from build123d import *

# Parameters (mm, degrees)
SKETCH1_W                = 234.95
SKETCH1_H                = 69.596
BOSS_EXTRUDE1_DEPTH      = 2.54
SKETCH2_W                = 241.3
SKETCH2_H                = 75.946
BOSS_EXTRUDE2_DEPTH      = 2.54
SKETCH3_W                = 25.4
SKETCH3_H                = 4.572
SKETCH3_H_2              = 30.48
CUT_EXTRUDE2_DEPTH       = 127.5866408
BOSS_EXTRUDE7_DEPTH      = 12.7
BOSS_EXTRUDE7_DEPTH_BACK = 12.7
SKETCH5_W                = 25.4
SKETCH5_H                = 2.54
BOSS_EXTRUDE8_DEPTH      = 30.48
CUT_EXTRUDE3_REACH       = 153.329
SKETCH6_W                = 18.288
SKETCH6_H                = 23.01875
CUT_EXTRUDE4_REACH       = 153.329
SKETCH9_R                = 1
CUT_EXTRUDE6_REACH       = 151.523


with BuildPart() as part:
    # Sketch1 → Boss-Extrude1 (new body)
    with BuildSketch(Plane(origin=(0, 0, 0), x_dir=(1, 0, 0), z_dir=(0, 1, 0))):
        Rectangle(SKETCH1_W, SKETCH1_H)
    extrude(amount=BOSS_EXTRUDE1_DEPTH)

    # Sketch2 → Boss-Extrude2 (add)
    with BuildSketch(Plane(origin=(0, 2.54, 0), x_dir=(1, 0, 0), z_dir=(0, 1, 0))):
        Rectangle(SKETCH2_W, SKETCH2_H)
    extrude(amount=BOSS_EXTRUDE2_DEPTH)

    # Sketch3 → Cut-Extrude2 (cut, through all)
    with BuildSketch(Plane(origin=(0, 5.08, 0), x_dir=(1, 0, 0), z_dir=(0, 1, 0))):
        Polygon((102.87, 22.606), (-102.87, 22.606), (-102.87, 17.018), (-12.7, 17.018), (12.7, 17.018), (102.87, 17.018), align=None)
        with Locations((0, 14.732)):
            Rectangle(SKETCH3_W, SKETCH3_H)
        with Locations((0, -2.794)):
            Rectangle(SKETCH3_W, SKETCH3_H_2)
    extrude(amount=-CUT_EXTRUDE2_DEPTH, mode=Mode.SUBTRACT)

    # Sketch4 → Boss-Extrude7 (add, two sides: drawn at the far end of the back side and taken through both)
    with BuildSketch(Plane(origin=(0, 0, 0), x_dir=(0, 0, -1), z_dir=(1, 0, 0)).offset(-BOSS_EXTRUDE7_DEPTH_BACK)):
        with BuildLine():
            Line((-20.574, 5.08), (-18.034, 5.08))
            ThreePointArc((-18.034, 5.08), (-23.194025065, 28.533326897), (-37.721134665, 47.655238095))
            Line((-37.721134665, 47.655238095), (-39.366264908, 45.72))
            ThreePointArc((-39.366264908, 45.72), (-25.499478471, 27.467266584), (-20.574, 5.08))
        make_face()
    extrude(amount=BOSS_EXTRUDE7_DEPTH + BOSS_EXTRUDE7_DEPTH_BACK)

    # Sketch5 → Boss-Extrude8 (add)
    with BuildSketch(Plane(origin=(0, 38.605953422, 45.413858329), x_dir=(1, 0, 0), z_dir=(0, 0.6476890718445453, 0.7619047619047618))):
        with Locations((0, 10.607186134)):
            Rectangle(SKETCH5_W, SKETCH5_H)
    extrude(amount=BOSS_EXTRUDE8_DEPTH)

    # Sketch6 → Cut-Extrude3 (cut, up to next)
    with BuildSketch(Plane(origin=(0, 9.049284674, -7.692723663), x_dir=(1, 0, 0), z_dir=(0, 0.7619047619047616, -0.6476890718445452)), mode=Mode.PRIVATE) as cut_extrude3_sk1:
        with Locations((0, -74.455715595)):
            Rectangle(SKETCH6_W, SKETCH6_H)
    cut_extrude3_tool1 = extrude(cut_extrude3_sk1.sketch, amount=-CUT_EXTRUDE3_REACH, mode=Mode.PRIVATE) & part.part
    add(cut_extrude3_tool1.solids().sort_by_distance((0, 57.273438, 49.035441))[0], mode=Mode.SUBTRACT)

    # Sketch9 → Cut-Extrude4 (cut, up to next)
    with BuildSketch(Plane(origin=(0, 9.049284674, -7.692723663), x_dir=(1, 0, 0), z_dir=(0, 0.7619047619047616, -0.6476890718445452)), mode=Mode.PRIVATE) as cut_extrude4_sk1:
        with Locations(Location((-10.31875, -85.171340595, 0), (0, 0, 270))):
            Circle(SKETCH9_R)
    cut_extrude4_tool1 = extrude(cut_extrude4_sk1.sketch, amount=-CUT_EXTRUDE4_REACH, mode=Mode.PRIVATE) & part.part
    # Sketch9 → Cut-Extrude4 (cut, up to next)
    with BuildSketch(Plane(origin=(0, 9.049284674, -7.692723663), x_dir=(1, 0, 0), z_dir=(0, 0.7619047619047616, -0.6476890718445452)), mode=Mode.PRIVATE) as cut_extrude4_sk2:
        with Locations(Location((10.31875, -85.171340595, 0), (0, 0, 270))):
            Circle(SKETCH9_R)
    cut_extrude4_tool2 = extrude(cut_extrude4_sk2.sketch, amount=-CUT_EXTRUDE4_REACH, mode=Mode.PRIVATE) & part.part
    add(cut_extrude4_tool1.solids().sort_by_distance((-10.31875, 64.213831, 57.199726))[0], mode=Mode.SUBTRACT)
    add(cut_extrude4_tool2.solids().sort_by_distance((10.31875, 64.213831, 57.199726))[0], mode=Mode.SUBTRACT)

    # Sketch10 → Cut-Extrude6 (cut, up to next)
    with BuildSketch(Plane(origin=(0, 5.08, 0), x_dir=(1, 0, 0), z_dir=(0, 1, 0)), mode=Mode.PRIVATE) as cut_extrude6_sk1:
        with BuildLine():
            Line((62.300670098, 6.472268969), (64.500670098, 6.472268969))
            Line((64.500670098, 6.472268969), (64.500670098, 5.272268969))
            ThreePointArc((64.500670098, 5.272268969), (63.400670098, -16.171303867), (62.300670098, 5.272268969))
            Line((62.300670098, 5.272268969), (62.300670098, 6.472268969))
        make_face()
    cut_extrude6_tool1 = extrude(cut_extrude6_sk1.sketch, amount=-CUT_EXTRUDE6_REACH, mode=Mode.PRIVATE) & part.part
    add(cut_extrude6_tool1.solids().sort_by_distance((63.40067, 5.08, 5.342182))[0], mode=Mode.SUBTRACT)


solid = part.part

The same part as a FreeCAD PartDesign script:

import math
import FreeCAD as App
import Part
import Sketcher

V = App.Vector
Q = App.Units.Quantity


def add_polygon(sketch, points):
    """Adds a closed chain of lines whose ends are joined by coincident constraints."""
    first, n = sketch.GeometryCount, len(points)
    for a, b in zip(points, points[1:] + points[:1]):
        sketch.addGeometry(Part.LineSegment(App.Vector(*a, 0), App.Vector(*b, 0)), False)
    for i in range(n):
        sketch.addConstraint(Sketcher.Constraint("Coincident", first + i, 2, first + (i + 1) % n, 1))

doc = App.newDocument("Part")
body = doc.addObject("PartDesign::Body", "Body")

sketch1 = doc.addObject("Sketcher::SketchObject", "Sketch")
body.addObject(sketch1)
sketch1.AttachmentSupport = (doc.XZ_Plane, [""])
sketch1.MapMode = "FlatFace"
add_polygon(sketch1, [(-117, -35), (-117, 35), (117, 35), (117, -35)])
sketch1.addConstraint([
    Sketcher.Constraint("Vertical", 0),
    Sketcher.Constraint("Horizontal", 1),
    Sketcher.Constraint("Vertical", 2),
    Sketcher.Constraint("Horizontal", 3),
    Sketcher.Constraint("Symmetric", 0, 2, 2, 2, -1, 1),
    Sketcher.Constraint("DistanceX", 1, 1, 1, 2, Q("9.25 in")),
    Sketcher.Constraint("DistanceY", 0, 1, 0, 2, Q("2.74 in")),
])
pad1 = doc.addObject("PartDesign::Pad", "Pad")
body.addObject(pad1)
pad1.Profile = sketch1
pad1.Length = Q("0.1 in")
pad1.Reversed = True

sketch2 = doc.addObject("Sketcher::SketchObject", "Sketch001")
body.addObject(sketch2)
sketch2.AttachmentSupport = (doc.XZ_Plane, [""])
sketch2.MapMode = "FlatFace"
sketch2.AttachmentOffset = App.Placement(V(0, 0, -0.1 * 25.4), App.Rotation())
add_polygon(sketch2, [(-121, -38), (-121, 38), (121, 38), (121, -38)])
sketch2.addConstraint([
    Sketcher.Constraint("Vertical", 0),
    Sketcher.Constraint("Horizontal", 1),
    Sketcher.Constraint("Vertical", 2),
    Sketcher.Constraint("Horizontal", 3),
    Sketcher.Constraint("Symmetric", 0, 2, 2, 2, -1, 1),
    Sketcher.Constraint("DistanceX", 1, 1, 1, 2, Q("9.5 in")),
    Sketcher.Constraint("DistanceY", 0, 1, 0, 2, Q("2.99 in")),
])
pad2 = doc.addObject("PartDesign::Pad", "Pad001")
body.addObject(pad2)
pad2.Profile = sketch2
pad2.Length = Q("0.1 in")
pad2.Reversed = True

sketch3 = doc.addObject("Sketcher::SketchObject", "Sketch002")
body.addObject(sketch3)
sketch3.AttachmentSupport = (doc.XZ_Plane, [""])
sketch3.MapMode = "FlatFace"
sketch3.AttachmentOffset = App.Placement(V(0, 0, -0.2 * 25.4), App.Rotation())
add_polygon(sketch3, [(103, -23), (-103, -23), (-103, -17), (-13, -17), (-13, 18), (13, 18), (13, -17), (103, -17)])
sketch3.addConstraint([
    Sketcher.Constraint("Horizontal", 0),
    Sketcher.Constraint("Vertical", 1),
    Sketcher.Constraint("Horizontal", 2),
    Sketcher.Constraint("Vertical", 3),
    Sketcher.Constraint("Horizontal", 4),
    Sketcher.Constraint("Vertical", 5),
    Sketcher.Constraint("Horizontal", 6),
    Sketcher.Constraint("Vertical", 7),
    Sketcher.Constraint("Symmetric", 2, 2, 5, 2, -2),
    Sketcher.Constraint("Equal", 2, 6),
    Sketcher.Constraint("DistanceX", 4, 1, 4, 2, Q("1 in")),
    Sketcher.Constraint("DistanceX", 0, 2, 0, 1, Q("8.1 in")),
    Sketcher.Constraint("DistanceY", 1, 1, 1, 2, Q("0.22 in")),
    Sketcher.Constraint("DistanceY", 3, 1, 3, 2, Q("1.38 in")),
    Sketcher.Constraint("DistanceY", 0, 2, -1, 1, Q("0.89 in")),
])
pocket1 = doc.addObject("PartDesign::Pocket", "Pocket")
body.addObject(pocket1)
pocket1.Profile = sketch3
pocket1.Type = "ThroughAll"
pocket1.Reversed = True

sketch4 = doc.addObject("Sketcher::SketchObject", "Sketch003")
body.addObject(sketch4)
sketch4.AttachmentSupport = (doc.YZ_Plane, [""])
sketch4.MapMode = "FlatFace"
sketch4.addGeometry([
    Part.LineSegment(V(5.1, 20.6, 0), V(5.1, 18, 0)),
    Part.ArcOfCircle(Part.Circle(V(5.1, 73.9, 0), V(0, 0, 1), 55.9), math.radians(-90), math.radians(-40)),
    Part.LineSegment(V(47.7, 37.7, 0), V(45.7, 39.4, 0)),
    Part.ArcOfCircle(Part.Circle(V(5.1, 73.9, 0), V(0, 0, 1), 53.3), math.radians(-90), math.radians(-40)),
], False)
sketch4.addConstraint([
    Sketcher.Constraint("Coincident", 0, 2, 1, 1),
    Sketcher.Constraint("Coincident", 1, 2, 2, 1),
    Sketcher.Constraint("Coincident", 2, 2, 3, 2),
    Sketcher.Constraint("Coincident", 3, 1, 0, 1),
    Sketcher.Constraint("Vertical", 0),
    Sketcher.Constraint("Coincident", 3, 3, 1, 3),
    Sketcher.Constraint("Vertical", 3, 3, 0, 2),
    Sketcher.Constraint("Radius", 1, Q("2.2 in")),
    Sketcher.Constraint("Radius", 3, Q("2.1 in")),
    Sketcher.Constraint("DistanceX", -1, 1, 1, 3, Q("0.2 in")),
    Sketcher.Constraint("DistanceX", -1, 1, 2, 2, Q("1.8 in")),
    Sketcher.Constraint("DistanceY", -1, 1, 1, 3, Q("2.91 in")),
    Sketcher.Constraint("DistanceX", -1, 1, 1, 2, Q("47.655238 mm")),
])
pad3 = doc.addObject("PartDesign::Pad", "Pad002")
body.addObject(pad3)
pad3.Profile = sketch4
pad3.Type = "TwoLengths"
pad3.Length = Q("0.5 in")
pad3.Length2 = Q("0.5 in")

sketch5 = doc.addObject("Sketcher::SketchObject", "Sketch004")
body.addObject(sketch5)
sketch5.Placement = App.Placement(V(0, 38.605953, 45.413858), App.Rotation(V(1, 0, 0), V(0, 0.761904762, -0.647689072), V(0, 0.647689072, 0.761904762), "ZXY"))
add_polygon(sketch5, [(-12.7, 11.9), (-12.7, 9.3), (12.7, 9.3), (12.7, 11.9)])
sketch5.addConstraint([
    Sketcher.Constraint("Vertical", 0),
    Sketcher.Constraint("Horizontal", 1),
    Sketcher.Constraint("Vertical", 2),
    Sketcher.Constraint("Horizontal", 3),
    Sketcher.Constraint("DistanceX", 1, 1, 1, 2, Q("1 in")),
    Sketcher.Constraint("DistanceY", 0, 2, 0, 1, Q("0.1 in")),
    Sketcher.Constraint("DistanceX", 0, 2, -1, 1, Q("0.5 in")),
    Sketcher.Constraint("DistanceY", -1, 1, 0, 2, Q("9.337186 mm")),
])
pad4 = doc.addObject("PartDesign::Pad", "Pad003")
body.addObject(pad4)
pad4.Profile = sketch5
pad4.Length = Q("1.2 in")

sketch6 = doc.addObject("Sketcher::SketchObject", "Sketch005")
body.addObject(sketch6)
sketch6.Placement = App.Placement(V(0, 9.049285, -7.692724), App.Rotation(V(1, 0, 0), V(0, -0.647689072, -0.761904762), V(0, 0.761904762, -0.647689072), "ZXY"))
add_polygon(sketch6, [(-9, -63), (-9, -86), (9, -86), (9, -63)])
sketch6.addConstraint([
    Sketcher.Constraint("Vertical", 0),
    Sketcher.Constraint("Horizontal", 1),
    Sketcher.Constraint("Vertical", 2),
    Sketcher.Constraint("Horizontal", 3),
    Sketcher.Constraint("DistanceX", 1, 1, 1, 2, Q("0.72 in")),
    Sketcher.Constraint("DistanceY", 0, 2, 0, 1, Q("0.90625 in")),
    Sketcher.Constraint("DistanceX", 0, 2, -1, 1, Q("0.36 in")),
    Sketcher.Constraint("DistanceY", 0, 2, -1, 1, Q("85.965091 mm")),
])
pocket2 = doc.addObject("PartDesign::Pocket", "Pocket001")
body.addObject(pocket2)
pocket2.Profile = sketch6
pocket2.Type = "UpToFirst"

sketch7 = doc.addObject("Sketcher::SketchObject", "Sketch006")
body.addObject(sketch7)
sketch7.Placement = App.Placement(V(0, 9.049285, -7.692724), App.Rotation(V(1, 0, 0), V(0, -0.647689072, -0.761904762), V(0, 0.761904762, -0.647689072), "ZXY"))
sketch7.addGeometry(Part.Circle(V(-10.3, -85.2, 0), V(0, 0, 1), 1), False)
sketch7.addConstraint([
    Sketcher.Constraint("Diameter", 0, Q("2 mm")),
    Sketcher.Constraint("DistanceX", 0, 3, -1, 1, Q("0.40625 in")),
    Sketcher.Constraint("DistanceY", 0, 3, -1, 1, Q("85.171341 mm")),
])
pocket3 = doc.addObject("PartDesign::Pocket", "Pocket002")
body.addObject(pocket3)
pocket3.Profile = sketch7
pocket3.Type = "UpToFirst"

sketch8 = doc.addObject("Sketcher::SketchObject", "Sketch007")
body.addObject(sketch8)
sketch8.Placement = App.Placement(V(0, 9.049285, -7.692724), App.Rotation(V(1, 0, 0), V(0, -0.647689072, -0.761904762), V(0, 0.761904762, -0.647689072), "ZXY"))
sketch8.addGeometry(Part.Circle(V(10.3, -85.2, 0), V(0, 0, 1), 1), False)
sketch8.addConstraint([
    Sketcher.Constraint("Diameter", 0, Q("2 mm")),
    Sketcher.Constraint("DistanceX", -1, 1, 0, 3, Q("0.40625 in")),
    Sketcher.Constraint("DistanceY", 0, 3, -1, 1, Q("85.171341 mm")),
])
pocket4 = doc.addObject("PartDesign::Pocket", "Pocket003")
body.addObject(pocket4)
pocket4.Profile = sketch8
pocket4.Type = "UpToFirst"

sketch9 = doc.addObject("Sketcher::SketchObject", "Sketch008")
body.addObject(sketch9)
sketch9.AttachmentSupport = (doc.XZ_Plane, [""])
sketch9.MapMode = "FlatFace"
sketch9.AttachmentOffset = App.Placement(V(0, 0, -0.2 * 25.4), App.Rotation())
sketch9.addGeometry([
    Part.LineSegment(V(64.5, -6.5, 0), V(62.3, -6.5, 0)),
    Part.LineSegment(V(62.3, -6.5, 0), V(62.3, -5.3, 0)),
    Part.ArcOfCircle(Part.Circle(V(63.4, 5.4, 0), V(0, 0, 1), 10.8), math.radians(-84), math.radians(264)),
    Part.LineSegment(V(64.5, -5.3, 0), V(64.5, -6.5, 0)),
], False)
sketch9.addConstraint([
    Sketcher.Constraint("Coincident", 0, 2, 1, 1),
    Sketcher.Constraint("Coincident", 1, 2, 2, 2),
    Sketcher.Constraint("Coincident", 2, 1, 3, 1),
    Sketcher.Constraint("Coincident", 3, 2, 0, 1),
    Sketcher.Constraint("Horizontal", 0),
    Sketcher.Constraint("Vertical", 1),
    Sketcher.Constraint("Vertical", 3),
    Sketcher.Constraint("Horizontal", 1, 2, 2, 1),
    Sketcher.Constraint("Radius", 2, Q("10.75 mm")),
    Sketcher.Constraint("DistanceX", 0, 2, 0, 1, Q("2.2 mm")),
    Sketcher.Constraint("DistanceY", 1, 1, 1, 2, Q("1.2 mm")),
    Sketcher.Constraint("DistanceX", -1, 1, 2, 3, Q("63.40067 mm")),
    Sketcher.Constraint("DistanceY", 0, 2, -1, 1, Q("6.472269 mm")),
])
pocket5 = doc.addObject("PartDesign::Pocket", "Pocket004")
body.addObject(pocket5)
pocket5.Profile = sketch9
pocket5.Type = "UpToFirst"
pocket5.Reversed = True

doc.recompute()
